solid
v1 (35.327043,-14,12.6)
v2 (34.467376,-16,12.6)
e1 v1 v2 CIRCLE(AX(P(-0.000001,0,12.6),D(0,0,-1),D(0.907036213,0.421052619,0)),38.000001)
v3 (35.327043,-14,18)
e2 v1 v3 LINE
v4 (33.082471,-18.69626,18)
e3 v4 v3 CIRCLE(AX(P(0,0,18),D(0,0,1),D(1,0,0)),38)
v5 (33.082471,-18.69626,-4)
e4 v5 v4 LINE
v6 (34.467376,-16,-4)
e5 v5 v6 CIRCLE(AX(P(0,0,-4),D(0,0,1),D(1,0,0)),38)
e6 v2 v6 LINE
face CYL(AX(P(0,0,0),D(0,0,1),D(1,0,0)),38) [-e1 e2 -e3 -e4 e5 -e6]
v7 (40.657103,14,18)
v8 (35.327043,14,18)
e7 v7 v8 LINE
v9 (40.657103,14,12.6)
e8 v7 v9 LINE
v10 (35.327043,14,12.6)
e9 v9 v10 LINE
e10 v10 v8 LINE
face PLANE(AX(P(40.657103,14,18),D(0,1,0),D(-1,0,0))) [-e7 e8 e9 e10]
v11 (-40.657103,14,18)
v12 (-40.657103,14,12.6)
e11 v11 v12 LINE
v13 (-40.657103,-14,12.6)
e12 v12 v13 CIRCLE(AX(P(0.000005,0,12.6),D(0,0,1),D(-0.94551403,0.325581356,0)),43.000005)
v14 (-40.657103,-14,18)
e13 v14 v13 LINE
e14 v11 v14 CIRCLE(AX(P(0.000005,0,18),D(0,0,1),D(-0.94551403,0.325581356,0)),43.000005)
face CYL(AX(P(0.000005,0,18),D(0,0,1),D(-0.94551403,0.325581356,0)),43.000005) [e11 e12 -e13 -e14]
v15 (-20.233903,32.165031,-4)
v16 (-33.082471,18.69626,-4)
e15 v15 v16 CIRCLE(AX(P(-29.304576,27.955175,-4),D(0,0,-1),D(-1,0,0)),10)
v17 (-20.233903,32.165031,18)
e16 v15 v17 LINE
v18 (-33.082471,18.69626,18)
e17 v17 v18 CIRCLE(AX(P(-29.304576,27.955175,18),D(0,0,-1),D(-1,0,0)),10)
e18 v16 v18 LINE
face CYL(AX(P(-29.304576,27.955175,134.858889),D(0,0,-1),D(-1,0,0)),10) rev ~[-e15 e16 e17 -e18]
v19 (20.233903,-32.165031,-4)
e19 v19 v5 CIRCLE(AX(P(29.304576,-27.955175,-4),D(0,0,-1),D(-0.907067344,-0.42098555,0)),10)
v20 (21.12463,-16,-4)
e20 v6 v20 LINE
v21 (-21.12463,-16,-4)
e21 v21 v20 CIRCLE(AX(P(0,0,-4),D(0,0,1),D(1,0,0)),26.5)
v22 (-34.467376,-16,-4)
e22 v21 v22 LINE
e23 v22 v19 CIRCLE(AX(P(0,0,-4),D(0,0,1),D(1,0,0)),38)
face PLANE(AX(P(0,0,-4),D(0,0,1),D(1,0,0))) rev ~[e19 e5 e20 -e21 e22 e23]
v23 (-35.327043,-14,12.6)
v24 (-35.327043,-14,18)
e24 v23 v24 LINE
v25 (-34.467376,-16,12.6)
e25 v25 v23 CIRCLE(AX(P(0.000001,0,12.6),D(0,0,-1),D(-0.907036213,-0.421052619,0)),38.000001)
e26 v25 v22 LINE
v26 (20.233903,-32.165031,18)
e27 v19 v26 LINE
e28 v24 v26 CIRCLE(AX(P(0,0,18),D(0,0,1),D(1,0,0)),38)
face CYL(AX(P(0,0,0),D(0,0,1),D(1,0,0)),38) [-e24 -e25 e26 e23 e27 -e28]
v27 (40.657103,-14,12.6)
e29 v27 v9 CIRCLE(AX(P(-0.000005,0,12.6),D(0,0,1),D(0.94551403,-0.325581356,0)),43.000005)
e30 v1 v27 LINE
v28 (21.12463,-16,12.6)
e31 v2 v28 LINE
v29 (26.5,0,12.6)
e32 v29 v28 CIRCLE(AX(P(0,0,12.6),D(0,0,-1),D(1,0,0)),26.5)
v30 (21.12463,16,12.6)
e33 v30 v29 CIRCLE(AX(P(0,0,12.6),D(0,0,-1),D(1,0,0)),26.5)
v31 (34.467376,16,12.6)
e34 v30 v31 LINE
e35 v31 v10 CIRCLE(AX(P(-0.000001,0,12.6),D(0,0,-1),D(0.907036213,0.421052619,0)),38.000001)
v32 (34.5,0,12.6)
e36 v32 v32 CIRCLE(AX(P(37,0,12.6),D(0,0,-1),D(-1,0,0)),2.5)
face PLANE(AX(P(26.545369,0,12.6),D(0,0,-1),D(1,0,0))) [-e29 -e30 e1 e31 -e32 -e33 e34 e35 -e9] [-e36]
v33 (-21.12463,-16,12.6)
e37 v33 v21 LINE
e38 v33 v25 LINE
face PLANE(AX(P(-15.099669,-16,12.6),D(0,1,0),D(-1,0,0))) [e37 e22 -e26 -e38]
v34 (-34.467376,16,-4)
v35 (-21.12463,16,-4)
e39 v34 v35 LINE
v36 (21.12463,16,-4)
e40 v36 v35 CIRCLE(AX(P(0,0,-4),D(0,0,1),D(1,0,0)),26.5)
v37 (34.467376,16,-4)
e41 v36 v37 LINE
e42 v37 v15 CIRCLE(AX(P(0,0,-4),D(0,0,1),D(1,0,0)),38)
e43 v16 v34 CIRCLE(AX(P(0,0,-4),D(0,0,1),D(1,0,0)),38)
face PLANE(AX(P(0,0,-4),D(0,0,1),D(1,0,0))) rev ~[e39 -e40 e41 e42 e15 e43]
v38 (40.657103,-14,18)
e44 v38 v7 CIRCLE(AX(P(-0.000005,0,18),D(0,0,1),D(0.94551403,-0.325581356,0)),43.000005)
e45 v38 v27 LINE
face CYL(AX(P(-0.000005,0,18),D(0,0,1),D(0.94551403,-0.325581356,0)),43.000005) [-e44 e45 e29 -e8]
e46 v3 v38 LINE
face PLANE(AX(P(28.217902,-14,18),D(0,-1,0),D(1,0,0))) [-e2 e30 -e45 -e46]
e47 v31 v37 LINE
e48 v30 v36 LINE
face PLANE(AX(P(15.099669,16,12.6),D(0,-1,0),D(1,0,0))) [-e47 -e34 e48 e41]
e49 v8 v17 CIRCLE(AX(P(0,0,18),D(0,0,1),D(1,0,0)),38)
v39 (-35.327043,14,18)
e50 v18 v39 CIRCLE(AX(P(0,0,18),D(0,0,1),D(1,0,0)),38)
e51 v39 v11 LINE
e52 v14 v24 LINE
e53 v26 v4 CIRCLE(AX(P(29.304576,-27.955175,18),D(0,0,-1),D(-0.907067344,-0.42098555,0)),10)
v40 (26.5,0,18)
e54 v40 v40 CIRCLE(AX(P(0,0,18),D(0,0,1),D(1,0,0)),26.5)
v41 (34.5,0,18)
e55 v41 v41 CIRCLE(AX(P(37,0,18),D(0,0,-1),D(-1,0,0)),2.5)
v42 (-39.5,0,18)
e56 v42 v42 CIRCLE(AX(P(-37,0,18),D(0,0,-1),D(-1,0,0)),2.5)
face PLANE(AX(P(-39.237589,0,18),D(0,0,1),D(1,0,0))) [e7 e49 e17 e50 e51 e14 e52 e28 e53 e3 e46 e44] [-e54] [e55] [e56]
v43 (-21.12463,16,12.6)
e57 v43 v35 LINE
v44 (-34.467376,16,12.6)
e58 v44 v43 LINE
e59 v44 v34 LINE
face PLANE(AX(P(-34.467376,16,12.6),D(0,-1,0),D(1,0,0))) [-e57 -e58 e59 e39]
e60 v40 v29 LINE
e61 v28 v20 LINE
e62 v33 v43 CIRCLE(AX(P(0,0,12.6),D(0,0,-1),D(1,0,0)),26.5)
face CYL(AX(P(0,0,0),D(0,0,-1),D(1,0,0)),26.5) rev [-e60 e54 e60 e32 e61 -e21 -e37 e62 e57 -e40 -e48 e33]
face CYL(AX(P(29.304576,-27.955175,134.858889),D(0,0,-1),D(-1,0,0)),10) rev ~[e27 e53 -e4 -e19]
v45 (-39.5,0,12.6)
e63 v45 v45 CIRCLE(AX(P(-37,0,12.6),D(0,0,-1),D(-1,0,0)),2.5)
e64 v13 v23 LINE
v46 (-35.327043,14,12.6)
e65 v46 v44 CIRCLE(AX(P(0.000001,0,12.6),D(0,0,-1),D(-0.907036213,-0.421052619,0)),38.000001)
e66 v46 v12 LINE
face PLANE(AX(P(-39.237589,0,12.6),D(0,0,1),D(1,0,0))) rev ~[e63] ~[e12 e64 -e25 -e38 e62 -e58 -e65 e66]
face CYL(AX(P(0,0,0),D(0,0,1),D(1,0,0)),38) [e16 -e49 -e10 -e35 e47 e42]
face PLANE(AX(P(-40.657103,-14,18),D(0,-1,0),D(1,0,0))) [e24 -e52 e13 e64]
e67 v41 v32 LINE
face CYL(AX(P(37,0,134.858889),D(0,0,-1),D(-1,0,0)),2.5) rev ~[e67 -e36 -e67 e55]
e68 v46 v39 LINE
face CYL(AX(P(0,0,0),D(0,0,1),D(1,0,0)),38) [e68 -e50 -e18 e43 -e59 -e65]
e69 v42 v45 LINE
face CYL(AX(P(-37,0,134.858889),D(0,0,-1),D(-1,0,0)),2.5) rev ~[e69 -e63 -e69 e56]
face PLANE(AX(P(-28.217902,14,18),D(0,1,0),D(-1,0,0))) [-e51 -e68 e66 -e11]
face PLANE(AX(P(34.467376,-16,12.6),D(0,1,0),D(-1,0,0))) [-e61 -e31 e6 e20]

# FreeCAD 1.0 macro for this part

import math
import FreeCAD as App
import Part
import Sketcher
from FreeCAD import Vector

doc = App.newDocument("Part")
body = doc.addObject("PartDesign::Body", "Body")

sketch1 = body.newObject("Sketcher::SketchObject", "Sketch")
sketch1.AttachmentSupport = (doc.getObject("XY_Plane"), [""])
sketch1.MapMode = "FlatFace"
sketch1.addGeometry(Part.Circle(Vector(0, 0, 0), Vector(0, 0, 1), 38), False)
sketch1.addGeometry(Part.Circle(Vector(0, 0, 0), Vector(0, 0, 1), 26), False)
sketch1.addConstraint(Sketcher.Constraint("Coincident", 0, 3, -1, 1))
sketch1.addConstraint(Sketcher.Constraint("Coincident", 1, 3, -1, 1))
sketch1.addConstraint(Sketcher.Constraint("Diameter", 0, 76.0))
sketch1.addConstraint(Sketcher.Constraint("Diameter", 1, 53.0))
pad1 = body.newObject("PartDesign::Pad", "Pad")
pad1.Profile = sketch1
pad1.Type = "TwoLengths"
pad1.Length = 18
pad1.Length2 = 4

sketch2 = body.newObject("Sketcher::SketchObject", "Sketch001")
sketch2.AttachmentSupport = (doc.getObject("XY_Plane"), [""])
sketch2.MapMode = "FlatFace"
sketch2.AttachmentOffset = App.Placement(Vector(0, 0, 18), App.Rotation())
sketch2.addGeometry(Part.ArcOfCircle(Part.Circle(Vector(0, 0, 0), Vector(0, 0, 1), 43), math.radians(161), math.radians(199)), False)
sketch2.addGeometry(Part.LineSegment(Vector(-41, -14, 0), Vector(-28, -14, 0)), False)
sketch2.addGeometry(Part.ArcOfCircle(Part.Circle(Vector(0, 0, 0), Vector(0, 0, 1), 31), math.radians(154), math.radians(206)), False)
sketch2.addGeometry(Part.LineSegment(Vector(-28, 14, 0), Vector(-41, 14, 0)), False)
sketch2.addGeometry(Part.ArcOfCircle(Part.Circle(Vector(0, 0, 0), Vector(0, 0, 1), 31), math.radians(-26), math.radians(26)), False)
sketch2.addGeometry(Part.LineSegment(Vector(28, -14, 0), Vector(41, -14, 0)), False)
sketch2.addGeometry(Part.ArcOfCircle(Part.Circle(Vector(0, 0, 0), Vector(0, 0, 1), 43), math.radians(-19), math.radians(19)), False)
sketch2.addGeometry(Part.LineSegment(Vector(41, 14, 0), Vector(28, 14, 0)), False)
sketch2.addConstraint(Sketcher.Constraint("Coincident", 0, 2, 1, 1))
sketch2.addConstraint(Sketcher.Constraint("Coincident", 1, 2, 2, 2))
sketch2.addConstraint(Sketcher.Constraint("Coincident", 2, 1, 3, 1))
sketch2.addConstraint(Sketcher.Constraint("Coincident", 3, 2, 0, 1))
sketch2.addConstraint(Sketcher.Constraint("Coincident", 4, 1, 5, 1))
sketch2.addConstraint(Sketcher.Constraint("Coincident", 5, 2, 6, 1))
sketch2.addConstraint(Sketcher.Constraint("Coincident", 6, 2, 7, 1))
sketch2.addConstraint(Sketcher.Constraint("Coincident", 7, 2, 4, 2))
sketch2.addConstraint(Sketcher.Constraint("Horizontal", 1))
sketch2.addConstraint(Sketcher.Constraint("Horizontal", 3))
sketch2.addConstraint(Sketcher.Constraint("Horizontal", 5))
sketch2.addConstraint(Sketcher.Constraint("Horizontal", 7))
sketch2.addConstraint(Sketcher.Constraint("Coincident", 0, 3, -1, 1))
sketch2.addConstraint(Sketcher.Constraint("Coincident", 2, 3, -1, 1))
sketch2.addConstraint(Sketcher.Constraint("Coincident", 4, 3, -1, 1))
sketch2.addConstraint(Sketcher.Constraint("Coincident", 6, 3, -1, 1))
sketch2.addConstraint(Sketcher.Constraint("Equal", 2, 4))
sketch2.addConstraint(Sketcher.Constraint("Equal", 0, 6))
sketch2.addConstraint(Sketcher.Constraint("Horizontal", 1, 2, 4, 1))
sketch2.addConstraint(Sketcher.Constraint("Horizontal", 3, 2, 6, 2))
sketch2.addConstraint(Sketcher.Constraint("Vertical", 1, 2, 2, 1))
sketch2.addConstraint(Sketcher.Constraint("Radius", 2, 31.499999))
sketch2.addConstraint(Sketcher.Constraint("DistanceY", 0, 2, -1, 1, 14.0))
sketch2.addConstraint(Sketcher.Constraint("DistanceX", 1, 1, 1, 2, 12.439201))
pad2 = body.newObject("PartDesign::Pad", "Pad001")
pad2.Profile = sketch2
pad2.Length = 5.4
pad2.Reversed = True

sketch3 = body.newObject("Sketcher::SketchObject", "Sketch002")
sketch3.AttachmentSupport = (doc.getObject("XY_Plane"), [""])
sketch3.MapMode = "FlatFace"
sketch3.AttachmentOffset = App.Placement(Vector(0, 0, 12.6), App.Rotation())
sketch3.addGeometry(Part.LineSegment(Vector(-15, -16, 0), Vector(-34, -16, 0)), False)
sketch3.addGeometry(Part.ArcOfCircle(Part.Circle(Vector(0, 0, 0), Vector(0, 0, 1), 38), math.radians(155), math.radians(205)), False)
sketch3.addGeometry(Part.LineSegment(Vector(-34, 16, 0), Vector(-15, 16, 0)), False)
sketch3.addGeometry(Part.ArcOfCircle(Part.Circle(Vector(0, 0, 0), Vector(0, 0, 1), 22), math.radians(133), math.radians(227)), False)
sketch3.addGeometry(Part.ArcOfCircle(Part.Circle(Vector(0, 0, 0), Vector(0, 0, 1), 22), math.radians(-47), math.radians(47)), False)
sketch3.addGeometry(Part.LineSegment(Vector(15, 16, 0), Vector(34, 16, 0)), False)
sketch3.addGeometry(Part.ArcOfCircle(Part.Circle(Vector(0, 0, 0), Vector(0, 0, 1), 38), math.radians(-25), math.radians(25)), False)
sketch3.addGeometry(Part.LineSegment(Vector(34, -16, 0), Vector(15, -16, 0)), False)
sketch3.addConstraint(Sketcher.Constraint("Coincident", 0, 2, 1, 2))
sketch3.addConstraint(Sketcher.Constraint("Coincident", 1, 1, 2, 1))
sketch3.addConstraint(Sketcher.Constraint("Coincident", 2, 2, 3, 1))
sketch3.addConstraint(Sketcher.Constraint("Coincident", 3, 2, 0, 1))
sketch3.addConstraint(Sketcher.Constraint("Coincident", 4, 2, 5, 1))
sketch3.addConstraint(Sketcher.Constraint("Coincident", 5, 2, 6, 2))
sketch3.addConstraint(Sketcher.Constraint("Coincident", 6, 1, 7, 1))
sketch3.addConstraint(Sketcher.Constraint("Coincident", 7, 2, 4, 1))
sketch3.addConstraint(Sketcher.Constraint("Horizontal", 0))
sketch3.addConstraint(Sketcher.Constraint("Horizontal", 2))
sketch3.addConstraint(Sketcher.Constraint("Horizontal", 5))
sketch3.addConstraint(Sketcher.Constraint("Horizontal", 7))
sketch3.addConstraint(Sketcher.Constraint("Coincident", 1, 3, -1, 1))
sketch3.addConstraint(Sketcher.Constraint("Coincident", 3, 3, -1, 1))
sketch3.addConstraint(Sketcher.Constraint("Coincident", 4, 3, -1, 1))
sketch3.addConstraint(Sketcher.Constraint("Coincident", 6, 3, -1, 1))
sketch3.addConstraint(Sketcher.Constraint("Equal", 3, 4))
sketch3.addConstraint(Sketcher.Constraint("Equal", 1, 6))
sketch3.addConstraint(Sketcher.Constraint("Horizontal", 2, 2, 4, 2))
sketch3.addConstraint(Sketcher.Constraint("Horizontal", 3, 2, 6, 1))
sketch3.addConstraint(Sketcher.Constraint("Vertical", 0, 2, 1, 1))
sketch3.addConstraint(Sketcher.Constraint("Radius", 1, 38.000001))
sketch3.addConstraint(Sketcher.Constraint("Radius", 3, 22.0))
sketch3.addConstraint(Sketcher.Constraint("DistanceY", 0, 2, -1, 1, 16.0))
pocket1 = body.newObject("PartDesign::Pocket", "Pocket")
pocket1.Profile = sketch3
pocket1.Type = "ThroughAll"

sketch4 = body.newObject("Sketcher::SketchObject", "Sketch003")
sketch4.AttachmentSupport = (doc.getObject("XY_Plane"), [""])
sketch4.MapMode = "FlatFace"
sketch4.AttachmentOffset = App.Placement(Vector(0, 0, 18), App.Rotation())
sketch4.addGeometry(Part.Circle(Vector(-37, 0, 0), Vector(0, 0, 1), 2.5), False)
sketch4.addGeometry(Part.Circle(Vector(37, 0, 0), Vector(0, 0, 1), 2.5), False)
sketch4.addConstraint(Sketcher.Constraint("Equal", 0, 1))
sketch4.addConstraint(Sketcher.Constraint("Symmetric", 0, 3, 1, 3, -1, 1))
sketch4.addConstraint(Sketcher.Constraint("PointOnObject", 0, 3, -1))
sketch4.addConstraint(Sketcher.Constraint("Diameter", 0, 5.0))
sketch4.addConstraint(Sketcher.Constraint("DistanceX", 0, 3, -1, 1, 37.0))
doc.recompute()
hole = body.newObject("PartDesign::Hole", "Hole")
hole.Profile = sketch4
hole.ThreadType = "None"
hole.Diameter = 5
hole.DepthType = "ThroughAll"

sketch5 = body.newObject("Sketcher::SketchObject", "Sketch004")
sketch5.AttachmentSupport = (doc.getObject("XY_Plane"), [""])
sketch5.MapMode = "FlatFace"
sketch5.AttachmentOffset = App.Placement(Vector(0, 0, 18), App.Rotation())
sketch5.addGeometry(Part.Circle(Vector(-29, 28, 0), Vector(0, 0, 1), 10), False)
sketch5.addGeometry(Part.Circle(Vector(29, -28, 0), Vector(0, 0, 1), 10), False)
sketch5.addConstraint(Sketcher.Constraint("Equal", 0, 1))
sketch5.addConstraint(Sketcher.Constraint("Symmetric", 0, 3, 1, 3, -1, 1))
sketch5.addConstraint(Sketcher.Constraint("Diameter", 0, 20.0))
sketch5.addConstraint(Sketcher.Constraint("DistanceY", 1, 3, 0, 3, 55.91035))
sketch5.addConstraint(Sketcher.Constraint("DistanceX", 0, 3, -1, 1, 29.304576))
doc.recompute()
hole2 = body.newObject("PartDesign::Hole", "Hole001")
hole2.Profile = sketch5
hole2.ThreadType = "None"
hole2.Diameter = 20
hole2.DepthType = "ThroughAll"

doc.recompute()
